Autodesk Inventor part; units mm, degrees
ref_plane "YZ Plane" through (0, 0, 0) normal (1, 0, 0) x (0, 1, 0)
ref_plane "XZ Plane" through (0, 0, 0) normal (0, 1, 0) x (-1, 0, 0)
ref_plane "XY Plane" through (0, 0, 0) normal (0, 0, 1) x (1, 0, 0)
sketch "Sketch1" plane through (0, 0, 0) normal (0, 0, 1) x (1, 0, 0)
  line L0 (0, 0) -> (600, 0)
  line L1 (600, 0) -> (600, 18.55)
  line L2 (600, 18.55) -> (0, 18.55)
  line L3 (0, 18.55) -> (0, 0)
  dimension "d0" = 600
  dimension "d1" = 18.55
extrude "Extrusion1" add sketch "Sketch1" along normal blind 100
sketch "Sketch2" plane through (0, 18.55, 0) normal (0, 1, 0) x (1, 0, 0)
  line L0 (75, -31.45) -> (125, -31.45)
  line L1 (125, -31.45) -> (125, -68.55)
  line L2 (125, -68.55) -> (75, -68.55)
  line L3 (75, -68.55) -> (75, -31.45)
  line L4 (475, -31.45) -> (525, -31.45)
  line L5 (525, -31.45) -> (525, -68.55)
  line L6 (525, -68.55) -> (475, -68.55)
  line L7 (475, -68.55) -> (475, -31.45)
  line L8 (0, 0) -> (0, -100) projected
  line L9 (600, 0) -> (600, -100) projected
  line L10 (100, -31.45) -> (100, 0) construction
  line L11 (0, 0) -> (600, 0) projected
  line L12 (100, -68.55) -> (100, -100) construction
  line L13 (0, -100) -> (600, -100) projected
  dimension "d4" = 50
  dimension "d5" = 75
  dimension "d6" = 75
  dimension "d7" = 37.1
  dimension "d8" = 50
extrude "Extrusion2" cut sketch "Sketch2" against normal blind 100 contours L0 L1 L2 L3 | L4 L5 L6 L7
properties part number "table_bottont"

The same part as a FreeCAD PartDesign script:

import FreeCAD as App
import Part
import Sketcher
from FreeCAD import Vector
Q = App.Units.Quantity

doc = App.newDocument("Part")
body = doc.addObject("PartDesign::Body", "Body")

sketch1 = doc.addObject("Sketcher::SketchObject", "Sketch")
body.addObject(sketch1)
sketch1.AttachmentSupport = (doc.XY_Plane, [""])
sketch1.MapMode = "FlatFace"
sketch1.addGeometry(Part.LineSegment(Vector(0, 19, 0), Vector(0, 0, 0)), False)
sketch1.addGeometry(Part.LineSegment(Vector(0, 0, 0), Vector(600, 0, 0)), False)
sketch1.addGeometry(Part.LineSegment(Vector(600, 0, 0), Vector(600, 19, 0)), False)
sketch1.addGeometry(Part.LineSegment(Vector(600, 19, 0), Vector(0, 19, 0)), False)
sketch1.addConstraint(Sketcher.Constraint("Coincident", 0, 2, 1, 1))
sketch1.addConstraint(Sketcher.Constraint("Coincident", 1, 2, 2, 1))
sketch1.addConstraint(Sketcher.Constraint("Coincident", 2, 2, 3, 1))
sketch1.addConstraint(Sketcher.Constraint("Coincident", 3, 2, 0, 1))
sketch1.addConstraint(Sketcher.Constraint("Vertical", 0))
sketch1.addConstraint(Sketcher.Constraint("Horizontal", 1))
sketch1.addConstraint(Sketcher.Constraint("Vertical", 2))
sketch1.addConstraint(Sketcher.Constraint("Horizontal", 3))
sketch1.addConstraint(Sketcher.Constraint("Coincident", 0, 2, -1, 1))
sketch1.addConstraint(Sketcher.Constraint("DistanceX", 1, 1, 1, 2, Q("600 mm")))
sketch1.addConstraint(Sketcher.Constraint("DistanceY", 0, 2, 0, 1, Q("18.55 mm")))
pad1 = doc.addObject("PartDesign::Pad", "Pad")
body.addObject(pad1)
pad1.Profile = sketch1
pad1.Length = 100

sketch2 = doc.addObject("Sketcher::SketchObject", "Sketch001")
body.addObject(sketch2)
sketch2.AttachmentSupport = (doc.XZ_Plane, [""])
sketch2.MapMode = "FlatFace"
sketch2.AttachmentOffset = App.Placement(Vector(0, 0, -18.55), App.Rotation())
sketch2.addGeometry(Part.LineSegment(Vector(125, 31, 0), Vector(75, 31, 0)), False)
sketch2.addGeometry(Part.LineSegment(Vector(75, 31, 0), Vector(75, 69, 0)), False)
sketch2.addGeometry(Part.LineSegment(Vector(75, 69, 0), Vector(125, 69, 0)), False)
sketch2.addGeometry(Part.LineSegment(Vector(125, 69, 0), Vector(125, 31, 0)), False)
sketch2.addGeometry(Part.LineSegment(Vector(525, 31, 0), Vector(475, 31, 0)), False)
sketch2.addGeometry(Part.LineSegment(Vector(475, 31, 0), Vector(475, 69, 0)), False)
sketch2.addGeometry(Part.LineSegment(Vector(475, 69, 0), Vector(525, 69, 0)), False)
sketch2.addGeometry(Part.LineSegment(Vector(525, 69, 0), Vector(525, 31, 0)), False)
sketch2.addConstraint(Sketcher.Constraint("Coincident", 0, 2, 1, 1))
sketch2.addConstraint(Sketcher.Constraint("Coincident", 1, 2, 2, 1))
sketch2.addConstraint(Sketcher.Constraint("Coincident", 2, 2, 3, 1))
sketch2.addConstraint(Sketcher.Constraint("Coincident", 3, 2, 0, 1))
sketch2.addConstraint(Sketcher.Constraint("Coincident", 4, 2, 5, 1))
sketch2.addConstraint(Sketcher.Constraint("Coincident", 5, 2, 6, 1))
sketch2.addConstraint(Sketcher.Constraint("Coincident", 6, 2, 7, 1))
sketch2.addConstraint(Sketcher.Constraint("Coincident", 7, 2, 4, 1))
sketch2.addConstraint(Sketcher.Constraint("Horizontal", 0))
sketch2.addConstraint(Sketcher.Constraint("Vertical", 1))
sketch2.addConstraint(Sketcher.Constraint("Horizontal", 2))
sketch2.addConstraint(Sketcher.Constraint("Vertical", 3))
sketch2.addConstraint(Sketcher.Constraint("Horizontal", 4))
sketch2.addConstraint(Sketcher.Constraint("Vertical", 5))
sketch2.addConstraint(Sketcher.Constraint("Horizontal", 6))
sketch2.addConstraint(Sketcher.Constraint("Vertical", 7))
sketch2.addConstraint(Sketcher.Constraint("Horizontal", 3, 2, 4, 2))
sketch2.addConstraint(Sketcher.Constraint("Horizontal", 2, 2, 5, 2))
sketch2.addConstraint(Sketcher.Constraint("Equal", 2, 4))
sketch2.addConstraint(Sketcher.Constraint("DistanceX", 0, 2, 0, 1, Q("50 mm")))
sketch2.addConstraint(Sketcher.Constraint("DistanceY", 1, 1, 1, 2, Q("37.1 mm")))
sketch2.addConstraint(Sketcher.Constraint("DistanceX", -1, 1, 0, 2, Q("75 mm")))
sketch2.addConstraint(Sketcher.Constraint("DistanceX", -1, 1, 4, 2, Q("475 mm")))
sketch2.addConstraint(Sketcher.Constraint("DistanceY", -1, 1, 0, 2, Q("31.45 mm")))
pocket1 = doc.addObject("PartDesign::Pocket", "Pocket")
body.addObject(pocket1)
pocket1.Profile = sketch2
pocket1.Length = 100
pocket1.Reversed = True

doc.recompute()
